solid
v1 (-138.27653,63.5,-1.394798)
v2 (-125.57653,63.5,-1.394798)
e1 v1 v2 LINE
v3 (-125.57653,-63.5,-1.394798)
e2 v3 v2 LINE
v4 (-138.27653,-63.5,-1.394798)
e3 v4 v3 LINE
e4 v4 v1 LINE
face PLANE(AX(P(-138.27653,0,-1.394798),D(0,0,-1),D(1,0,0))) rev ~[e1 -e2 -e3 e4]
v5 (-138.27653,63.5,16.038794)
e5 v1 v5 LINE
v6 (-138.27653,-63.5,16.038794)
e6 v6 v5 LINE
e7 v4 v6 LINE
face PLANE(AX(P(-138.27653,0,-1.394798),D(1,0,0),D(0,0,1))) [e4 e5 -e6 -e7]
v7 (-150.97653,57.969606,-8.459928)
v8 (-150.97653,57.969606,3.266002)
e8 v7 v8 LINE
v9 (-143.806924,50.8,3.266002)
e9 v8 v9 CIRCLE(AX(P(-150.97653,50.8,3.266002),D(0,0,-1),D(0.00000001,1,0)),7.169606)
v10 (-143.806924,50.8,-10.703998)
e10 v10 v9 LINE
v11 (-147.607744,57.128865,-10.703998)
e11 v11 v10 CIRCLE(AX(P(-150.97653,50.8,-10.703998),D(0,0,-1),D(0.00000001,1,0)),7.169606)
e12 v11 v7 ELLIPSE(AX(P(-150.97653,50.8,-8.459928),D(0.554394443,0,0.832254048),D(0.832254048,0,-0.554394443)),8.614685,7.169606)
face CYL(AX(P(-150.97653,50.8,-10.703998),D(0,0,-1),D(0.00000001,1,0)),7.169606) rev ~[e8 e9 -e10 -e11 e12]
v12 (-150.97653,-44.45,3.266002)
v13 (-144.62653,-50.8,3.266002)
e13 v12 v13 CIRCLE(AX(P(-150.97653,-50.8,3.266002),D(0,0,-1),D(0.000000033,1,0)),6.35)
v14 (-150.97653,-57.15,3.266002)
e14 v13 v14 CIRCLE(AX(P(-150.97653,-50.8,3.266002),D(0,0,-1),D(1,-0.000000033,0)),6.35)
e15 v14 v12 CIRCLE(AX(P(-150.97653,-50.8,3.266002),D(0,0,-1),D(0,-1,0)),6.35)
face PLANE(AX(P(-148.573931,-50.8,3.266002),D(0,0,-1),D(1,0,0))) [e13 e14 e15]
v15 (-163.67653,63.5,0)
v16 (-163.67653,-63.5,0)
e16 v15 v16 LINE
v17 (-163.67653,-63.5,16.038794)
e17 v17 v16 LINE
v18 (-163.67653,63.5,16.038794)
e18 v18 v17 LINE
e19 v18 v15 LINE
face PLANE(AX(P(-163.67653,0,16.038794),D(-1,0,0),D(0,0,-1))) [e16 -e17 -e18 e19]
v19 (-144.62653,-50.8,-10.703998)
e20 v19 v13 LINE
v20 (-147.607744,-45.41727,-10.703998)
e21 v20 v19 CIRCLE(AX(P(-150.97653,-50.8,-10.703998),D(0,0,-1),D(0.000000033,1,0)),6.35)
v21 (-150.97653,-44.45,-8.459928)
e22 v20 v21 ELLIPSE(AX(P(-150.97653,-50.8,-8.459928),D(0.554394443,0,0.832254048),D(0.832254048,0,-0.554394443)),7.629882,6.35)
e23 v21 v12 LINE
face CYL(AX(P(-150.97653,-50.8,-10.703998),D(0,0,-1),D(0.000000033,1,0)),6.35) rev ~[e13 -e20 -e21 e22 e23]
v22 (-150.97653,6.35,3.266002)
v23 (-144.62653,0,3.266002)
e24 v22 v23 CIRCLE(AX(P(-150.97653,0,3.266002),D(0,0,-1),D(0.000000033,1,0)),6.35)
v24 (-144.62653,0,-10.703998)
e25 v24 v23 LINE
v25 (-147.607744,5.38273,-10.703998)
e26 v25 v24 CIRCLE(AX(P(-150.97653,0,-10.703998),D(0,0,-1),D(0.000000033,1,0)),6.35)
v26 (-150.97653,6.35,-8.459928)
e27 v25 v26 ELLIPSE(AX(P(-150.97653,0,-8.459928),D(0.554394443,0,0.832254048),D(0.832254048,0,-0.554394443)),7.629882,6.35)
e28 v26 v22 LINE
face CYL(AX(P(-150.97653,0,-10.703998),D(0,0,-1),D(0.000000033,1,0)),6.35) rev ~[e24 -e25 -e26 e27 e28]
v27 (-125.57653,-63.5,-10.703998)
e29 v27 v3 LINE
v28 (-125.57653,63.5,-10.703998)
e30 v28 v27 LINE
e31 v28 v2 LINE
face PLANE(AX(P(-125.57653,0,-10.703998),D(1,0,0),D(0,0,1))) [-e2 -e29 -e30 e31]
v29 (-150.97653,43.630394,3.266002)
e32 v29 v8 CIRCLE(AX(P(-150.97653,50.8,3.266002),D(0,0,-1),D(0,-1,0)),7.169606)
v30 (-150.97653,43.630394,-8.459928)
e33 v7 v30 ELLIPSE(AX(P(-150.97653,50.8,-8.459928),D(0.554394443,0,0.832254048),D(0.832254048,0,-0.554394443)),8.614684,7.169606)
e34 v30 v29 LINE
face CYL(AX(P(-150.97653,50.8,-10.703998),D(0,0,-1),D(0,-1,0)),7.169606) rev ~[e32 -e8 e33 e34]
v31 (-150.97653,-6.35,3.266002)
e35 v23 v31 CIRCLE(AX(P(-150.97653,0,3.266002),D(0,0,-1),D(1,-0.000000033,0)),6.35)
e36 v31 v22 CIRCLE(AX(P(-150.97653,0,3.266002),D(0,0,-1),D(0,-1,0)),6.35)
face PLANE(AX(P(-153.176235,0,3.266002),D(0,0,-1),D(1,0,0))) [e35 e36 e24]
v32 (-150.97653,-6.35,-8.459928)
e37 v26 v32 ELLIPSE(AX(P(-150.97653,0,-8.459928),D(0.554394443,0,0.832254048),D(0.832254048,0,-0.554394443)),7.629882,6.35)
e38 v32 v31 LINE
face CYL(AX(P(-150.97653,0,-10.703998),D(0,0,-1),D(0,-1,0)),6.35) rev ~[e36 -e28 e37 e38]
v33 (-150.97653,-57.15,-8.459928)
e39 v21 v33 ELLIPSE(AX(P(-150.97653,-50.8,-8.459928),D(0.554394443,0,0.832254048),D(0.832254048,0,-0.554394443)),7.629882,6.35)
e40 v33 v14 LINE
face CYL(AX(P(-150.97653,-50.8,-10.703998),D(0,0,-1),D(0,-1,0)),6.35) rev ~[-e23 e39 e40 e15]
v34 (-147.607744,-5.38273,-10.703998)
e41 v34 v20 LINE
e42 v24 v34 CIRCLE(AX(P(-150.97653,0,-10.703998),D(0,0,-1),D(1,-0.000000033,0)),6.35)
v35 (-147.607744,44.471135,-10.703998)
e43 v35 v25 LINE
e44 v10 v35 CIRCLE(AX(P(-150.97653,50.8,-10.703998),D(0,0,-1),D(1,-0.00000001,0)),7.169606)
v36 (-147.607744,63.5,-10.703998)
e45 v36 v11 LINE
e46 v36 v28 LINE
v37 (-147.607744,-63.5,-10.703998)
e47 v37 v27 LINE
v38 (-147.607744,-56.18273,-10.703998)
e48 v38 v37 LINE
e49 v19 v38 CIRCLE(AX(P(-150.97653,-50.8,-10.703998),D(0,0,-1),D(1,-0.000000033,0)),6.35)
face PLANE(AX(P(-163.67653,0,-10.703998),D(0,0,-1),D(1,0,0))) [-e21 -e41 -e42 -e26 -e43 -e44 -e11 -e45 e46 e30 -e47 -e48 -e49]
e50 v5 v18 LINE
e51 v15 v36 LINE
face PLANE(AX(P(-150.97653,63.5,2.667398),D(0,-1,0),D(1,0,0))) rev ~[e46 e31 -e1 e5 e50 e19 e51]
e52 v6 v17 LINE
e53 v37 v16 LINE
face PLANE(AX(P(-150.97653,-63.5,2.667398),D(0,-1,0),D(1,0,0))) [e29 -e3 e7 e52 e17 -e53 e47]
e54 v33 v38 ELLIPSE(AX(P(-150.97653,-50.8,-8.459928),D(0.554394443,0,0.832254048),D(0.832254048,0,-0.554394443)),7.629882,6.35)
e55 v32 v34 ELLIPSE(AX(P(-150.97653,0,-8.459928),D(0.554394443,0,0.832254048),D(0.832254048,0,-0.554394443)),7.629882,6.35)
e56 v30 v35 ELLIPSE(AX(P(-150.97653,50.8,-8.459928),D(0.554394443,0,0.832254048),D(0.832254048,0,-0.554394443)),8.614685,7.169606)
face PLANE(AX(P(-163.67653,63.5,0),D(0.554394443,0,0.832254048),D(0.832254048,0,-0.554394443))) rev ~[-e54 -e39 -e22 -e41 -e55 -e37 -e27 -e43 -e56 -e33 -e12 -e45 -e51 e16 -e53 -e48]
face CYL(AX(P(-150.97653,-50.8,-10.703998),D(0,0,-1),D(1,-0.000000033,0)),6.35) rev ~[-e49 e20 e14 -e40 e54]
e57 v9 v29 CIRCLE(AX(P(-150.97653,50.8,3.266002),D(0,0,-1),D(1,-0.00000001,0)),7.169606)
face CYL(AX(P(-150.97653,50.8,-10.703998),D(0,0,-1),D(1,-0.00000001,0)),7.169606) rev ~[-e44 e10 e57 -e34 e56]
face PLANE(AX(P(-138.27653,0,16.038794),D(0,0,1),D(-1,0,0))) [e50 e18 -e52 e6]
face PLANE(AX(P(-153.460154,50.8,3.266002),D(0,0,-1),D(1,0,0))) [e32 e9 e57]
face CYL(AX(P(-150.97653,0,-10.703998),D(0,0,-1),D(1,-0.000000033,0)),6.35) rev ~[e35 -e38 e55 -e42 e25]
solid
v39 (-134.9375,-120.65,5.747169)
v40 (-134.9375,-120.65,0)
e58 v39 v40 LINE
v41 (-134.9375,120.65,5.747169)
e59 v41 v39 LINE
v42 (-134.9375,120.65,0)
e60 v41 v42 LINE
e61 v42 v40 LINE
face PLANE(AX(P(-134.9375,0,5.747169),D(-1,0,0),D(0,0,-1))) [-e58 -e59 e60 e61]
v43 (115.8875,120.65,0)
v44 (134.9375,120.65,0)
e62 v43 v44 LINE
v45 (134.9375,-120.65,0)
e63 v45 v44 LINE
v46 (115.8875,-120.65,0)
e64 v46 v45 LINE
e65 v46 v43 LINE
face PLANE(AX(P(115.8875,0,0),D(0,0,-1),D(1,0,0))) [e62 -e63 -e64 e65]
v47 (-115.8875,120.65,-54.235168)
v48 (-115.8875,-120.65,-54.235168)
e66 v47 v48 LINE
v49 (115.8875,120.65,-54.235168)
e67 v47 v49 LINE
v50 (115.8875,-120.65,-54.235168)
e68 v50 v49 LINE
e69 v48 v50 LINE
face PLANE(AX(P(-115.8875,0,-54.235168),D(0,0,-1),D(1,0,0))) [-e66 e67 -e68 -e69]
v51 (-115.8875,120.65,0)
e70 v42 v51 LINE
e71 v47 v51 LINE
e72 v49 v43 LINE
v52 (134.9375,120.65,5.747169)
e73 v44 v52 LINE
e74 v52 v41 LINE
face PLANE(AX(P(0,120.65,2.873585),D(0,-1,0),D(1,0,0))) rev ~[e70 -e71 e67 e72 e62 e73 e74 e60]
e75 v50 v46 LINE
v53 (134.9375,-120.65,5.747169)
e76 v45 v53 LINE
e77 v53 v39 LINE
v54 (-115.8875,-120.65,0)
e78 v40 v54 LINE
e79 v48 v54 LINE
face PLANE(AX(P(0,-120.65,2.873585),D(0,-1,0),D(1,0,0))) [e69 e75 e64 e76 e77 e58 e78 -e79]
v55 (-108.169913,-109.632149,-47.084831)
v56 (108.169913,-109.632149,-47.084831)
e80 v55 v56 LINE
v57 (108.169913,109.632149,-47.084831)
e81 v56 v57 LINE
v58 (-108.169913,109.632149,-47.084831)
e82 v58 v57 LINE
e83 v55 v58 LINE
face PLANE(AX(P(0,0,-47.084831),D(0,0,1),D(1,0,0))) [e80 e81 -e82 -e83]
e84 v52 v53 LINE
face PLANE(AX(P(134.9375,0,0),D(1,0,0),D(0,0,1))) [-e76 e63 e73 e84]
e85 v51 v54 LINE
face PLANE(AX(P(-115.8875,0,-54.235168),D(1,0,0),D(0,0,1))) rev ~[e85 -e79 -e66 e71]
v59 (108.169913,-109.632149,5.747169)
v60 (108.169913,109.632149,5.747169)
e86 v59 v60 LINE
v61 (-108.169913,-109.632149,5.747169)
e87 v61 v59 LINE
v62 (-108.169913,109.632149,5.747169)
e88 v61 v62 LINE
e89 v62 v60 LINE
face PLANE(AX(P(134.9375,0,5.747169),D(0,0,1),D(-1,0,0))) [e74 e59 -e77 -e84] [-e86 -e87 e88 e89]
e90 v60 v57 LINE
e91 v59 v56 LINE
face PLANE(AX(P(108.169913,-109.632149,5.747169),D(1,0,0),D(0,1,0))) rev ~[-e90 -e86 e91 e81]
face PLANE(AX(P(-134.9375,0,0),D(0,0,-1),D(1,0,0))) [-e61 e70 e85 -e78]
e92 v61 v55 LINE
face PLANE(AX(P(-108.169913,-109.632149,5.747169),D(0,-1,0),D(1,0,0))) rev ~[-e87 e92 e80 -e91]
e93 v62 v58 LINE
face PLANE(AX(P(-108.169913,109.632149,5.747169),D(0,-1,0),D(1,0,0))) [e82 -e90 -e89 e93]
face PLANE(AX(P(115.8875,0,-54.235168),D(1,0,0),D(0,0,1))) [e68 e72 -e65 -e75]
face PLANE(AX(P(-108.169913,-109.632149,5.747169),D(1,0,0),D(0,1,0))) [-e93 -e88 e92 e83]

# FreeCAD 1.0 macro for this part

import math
import FreeCAD as App
import Part
import Sketcher
from FreeCAD import Vector
Q = App.Units.Quantity

doc = App.newDocument("Part")
params = doc.addObject("Spreadsheet::Sheet", "Params")
for row, (alias, value) in enumerate([
    ("sketch1_width", "1 in"),
    ("sketch1_width2", "1.5 in"),
    ("pad1_length", "5 in"),
    ("sketch3_radius", "0.25 in"),
    ("pocket2_length", "0.55 in"),
    ("sketch4_width", "0.75 in"),
    ("sketch4_width2", "10.625 in"),
    ("pad2_length", "9.5 in"),
    ("pocket3_length", "2.08 in"),
], start=1):
    params.set(f"A{row}", alias)
    params.set(f"B{row}", "=" + value)
    params.setAlias(f"B{row}", alias)

body = doc.addObject("PartDesign::Body", "Body")

sketch1 = body.newObject("Sketcher::SketchObject", "Sketch")
sketch1.AttachmentSupport = (doc.getObject("XZ_Plane"), [""])
sketch1.MapMode = "FlatFace"
sketch1.addGeometry([
    Part.LineSegment(Vector(-138, 16, 0), Vector(-164, 16, 0)),
    Part.LineSegment(Vector(-164, 16, 0), Vector(-164, -11, 0)),
    Part.LineSegment(Vector(-164, -11, 0), Vector(-126, -11, 0)),
    Part.LineSegment(Vector(-126, -11, 0), Vector(-126, -1, 0)),
    Part.LineSegment(Vector(-126, -1, 0), Vector(-138, -1, 0)),
    Part.LineSegment(Vector(-138, -1, 0), Vector(-138, 16, 0)),
], False)
sketch1.addConstraint([
    Sketcher.Constraint("Coincident", 0, 2, 1, 1),
    Sketcher.Constraint("Coincident", 1, 2, 2, 1),
    Sketcher.Constraint("Coincident", 2, 2, 3, 1),
    Sketcher.Constraint("Coincident", 3, 2, 4, 1),
    Sketcher.Constraint("Coincident", 4, 2, 5, 1),
    Sketcher.Constraint("Coincident", 5, 2, 0, 1),
    Sketcher.Constraint("Horizontal", 0),
    Sketcher.Constraint("Vertical", 1),
    Sketcher.Constraint("Horizontal", 2),
    Sketcher.Constraint("Vertical", 3),
    Sketcher.Constraint("Horizontal", 4),
    Sketcher.Constraint("Vertical", 5),
    Sketcher.Constraint("DistanceX", 0, 2, 0, 1, Q("1 in")),
    Sketcher.Constraint("DistanceX", 2, 1, 2, 2, Q("1.5 in")),
    Sketcher.Constraint("DistanceY", 3, 1, 3, 2, 9.3092),
    Sketcher.Constraint("DistanceY", 1, 2, 1, 1, 26.742792),
    Sketcher.Constraint("DistanceX", 0, 2, -1, 1, 163.67653),
    Sketcher.Constraint("DistanceY", -1, 1, 0, 2, 16.038794),
])
sketch1.setExpression("Constraints[12]", "Params.sketch1_width")
sketch1.setExpression("Constraints[13]", "Params.sketch1_width2")
pad1 = body.newObject("PartDesign::Pad", "Pad")
pad1.Profile = sketch1
pad1.setExpression("Length", "Params.pad1_length")
pad1.Midplane = True

sketch2 = body.newObject("Sketcher::SketchObject", "Sketch001")
sketch2.AttachmentSupport = (doc.getObject("XZ_Plane"), [""])
sketch2.MapMode = "FlatFace"
sketch2.AttachmentOffset = App.Placement(Vector(0, 0, -2.5 * 25.4), App.Rotation())
sketch2.addGeometry([
    Part.LineSegment(Vector(-148, -11, 0), Vector(-164, -11, 0)),
    Part.LineSegment(Vector(-164, -11, 0), Vector(-164, 0, 0)),
    Part.LineSegment(Vector(-164, 0, 0), Vector(-148, -11, 0)),
], False)
sketch2.addConstraint([
    Sketcher.Constraint("Coincident", 0, 2, 1, 1),
    Sketcher.Constraint("Coincident", 1, 2, 2, 1),
    Sketcher.Constraint("Coincident", 2, 2, 0, 1),
    Sketcher.Constraint("Horizontal", 0),
    Sketcher.Constraint("Vertical", 1),
    Sketcher.Constraint("PointOnObject", 1, 2, -1),
    Sketcher.Constraint("Distance", 2, 19.307549),
    Sketcher.Constraint("DistanceX", 0, 2, 0, 1, 16.068786),
    Sketcher.Constraint("DistanceX", 0, 2, -1, 1, 163.67653),
])
pocket1 = body.newObject("PartDesign::Pocket", "Pocket")
pocket1.Profile = sketch2
pocket1.Type = "ThroughAll"
pocket1.Reversed = True

sketch3 = body.newObject("Sketcher::SketchObject", "Sketch002")
sketch3.AttachmentSupport = (doc.getObject("XY_Plane"), [""])
sketch3.MapMode = "FlatFace"
sketch3.AttachmentOffset = App.Placement(Vector(0, 0, -10.703998), App.Rotation())
sketch3.addGeometry([
    Part.ArcOfCircle(Part.Circle(Vector(-151, -51, 0), Vector(0, 0, 1), 6), math.radians(0), math.radians(90)),
    Part.ArcOfCircle(Part.Circle(Vector(-151, -51, 0), Vector(0, 0, 1), 6), math.radians(-90), math.radians(0)),
    Part.ArcOfCircle(Part.Circle(Vector(-151, -51, 0), Vector(0, 0, 1), 6), math.radians(90), math.radians(270)),
    Part.ArcOfCircle(Part.Circle(Vector(-151, 0, 0), Vector(0, 0, 1), 6), math.radians(90), math.radians(270)),
    Part.ArcOfCircle(Part.Circle(Vector(-151, 0, 0), Vector(0, 0, 1), 6), math.radians(0), math.radians(90)),
    Part.ArcOfCircle(Part.Circle(Vector(-151, 0, 0), Vector(0, 0, 1), 6), math.radians(-90), math.radians(0)),
    Part.ArcOfCircle(Part.Circle(Vector(-151, 51, 0), Vector(0, 0, 1), 7), math.radians(90), math.radians(270)),
    Part.ArcOfCircle(Part.Circle(Vector(-151, 51, 0), Vector(0, 0, 1), 7), math.radians(0), math.radians(90)),
    Part.ArcOfCircle(Part.Circle(Vector(-151, 51, 0), Vector(0, 0, 1), 7), math.radians(-90), math.radians(0)),
], False)
sketch3.addConstraint([
    Sketcher.Constraint("Tangent", 0, 1, 1, 2),
    Sketcher.Constraint("Tangent", 1, 1, 2, 2),
    Sketcher.Constraint("Tangent", 2, 1, 0, 2),
    Sketcher.Constraint("Tangent", 3, 1, 4, 2),
    Sketcher.Constraint("Tangent", 4, 1, 5, 2),
    Sketcher.Constraint("Tangent", 5, 1, 3, 2),
    Sketcher.Constraint("Tangent", 6, 1, 7, 2),
    Sketcher.Constraint("Tangent", 7, 1, 8, 2),
    Sketcher.Constraint("Tangent", 8, 1, 6, 2),
    Sketcher.Constraint("Equal", 2, 3),
    Sketcher.Constraint("Symmetric", 0, 3, 6, 3, -1),
    Sketcher.Constraint("Symmetric", 3, 1, 5, 1, -1),
    Sketcher.Constraint("PointOnObject", 4, 1, -1),
    Sketcher.Constraint("Horizontal", 2, 3, 0, 1),
    Sketcher.Constraint("Horizontal", 8, 3, 7, 1),
    Sketcher.Constraint("Vertical", 2, 3, 3, 3),
    Sketcher.Constraint("Vertical", 8, 3, 1, 1),
    Sketcher.Constraint("Vertical", 1, 1, 2, 1),
    Sketcher.Constraint("Vertical", 2, 1, 3, 1),
    Sketcher.Constraint("Vertical", 5, 1, 6, 1),
    Sketcher.Constraint("Vertical", 6, 1, 8, 1),
    Sketcher.Constraint("Radius", 0, Q("0.25 in")),
    Sketcher.Constraint("DistanceY", 0, 3, -1, 1, Q("2 in")),
    Sketcher.Constraint("Radius", 6, 7.169606),
    Sketcher.Constraint("DistanceX", 0, 3, -1, 1, 150.97653),
])
sketch3.setExpression("Constraints[21]", "Params.sketch3_radius")
pocket2 = body.newObject("PartDesign::Pocket", "Pocket001")
pocket2.Profile = sketch3
pocket2.setExpression("Length", "Params.pocket2_length")
pocket2.Reversed = True
body2 = doc.addObject("PartDesign::Body", "Body001")

sketch4 = body2.newObject("Sketcher::SketchObject", "Sketch003")
sketch4.AttachmentSupport = (doc.getObject("XZ_Plane001"), [""])
sketch4.MapMode = "FlatFace"
sketch4.addGeometry([
    Part.LineSegment(Vector(135, 0, 0), Vector(135, 6, 0)),
    Part.LineSegment(Vector(135, 6, 0), Vector(-135, 6, 0)),
    Part.LineSegment(Vector(-135, 6, 0), Vector(-135, 0, 0)),
    Part.LineSegment(Vector(-135, 0, 0), Vector(-116, 0, 0)),
    Part.LineSegment(Vector(-116, 0, 0), Vector(-116, -54, 0)),
    Part.LineSegment(Vector(-116, -54, 0), Vector(116, -54, 0)),
    Part.LineSegment(Vector(116, -54, 0), Vector(116, 0, 0)),
    Part.LineSegment(Vector(116, 0, 0), Vector(135, 0, 0)),
], False)
sketch4.addConstraint([
    Sketcher.Constraint("Coincident", 0, 2, 1, 1),
    Sketcher.Constraint("Coincident", 1, 2, 2, 1),
    Sketcher.Constraint("Coincident", 2, 2, 3, 1),
    Sketcher.Constraint("Coincident", 3, 2, 4, 1),
    Sketcher.Constraint("Coincident", 4, 2, 5, 1),
    Sketcher.Constraint("Coincident", 5, 2, 6, 1),
    Sketcher.Constraint("Coincident", 6, 2, 7, 1),
    Sketcher.Constraint("Coincident", 7, 2, 0, 1),
    Sketcher.Constraint("Vertical", 0),
    Sketcher.Constraint("Horizontal", 1),
    Sketcher.Constraint("Vertical", 2),
    Sketcher.Constraint("Horizontal", 3),
    Sketcher.Constraint("Vertical", 4),
    Sketcher.Constraint("Horizontal", 5),
    Sketcher.Constraint("Vertical", 6),
    Sketcher.Constraint("Horizontal", 7),
    Sketcher.Constraint("Symmetric", 3, 2, 6, 2, -1, 1),
    Sketcher.Constraint("Symmetric", 2, 2, 7, 2, -2),
    Sketcher.Constraint("DistanceX", 3, 1, 3, 2, Q("0.75 in")),
    Sketcher.Constraint("DistanceX", 1, 2, 1, 1, Q("10.625 in")),
    Sketcher.Constraint("DistanceY", 0, 1, 0, 2, 5.747169),
    Sketcher.Constraint("DistanceY", 4, 2, 4, 1, 54.235168),
])
sketch4.setExpression("Constraints[18]", "Params.sketch4_width")
sketch4.setExpression("Constraints[19]", "Params.sketch4_width2")
pad2 = body2.newObject("PartDesign::Pad", "Pad001")
pad2.Profile = sketch4
pad2.setExpression("Length", "Params.pad2_length")
pad2.Midplane = True

sketch5 = body2.newObject("Sketcher::SketchObject", "Sketch004")
sketch5.AttachmentSupport = (doc.getObject("XY_Plane001"), [""])
sketch5.MapMode = "FlatFace"
sketch5.AttachmentOffset = App.Placement(Vector(0, 0, 5.747169), App.Rotation())
sketch5.addGeometry([
    Part.LineSegment(Vector(-108, 110, 0), Vector(-108, -110, 0)),
    Part.LineSegment(Vector(-108, -110, 0), Vector(108, -110, 0)),
    Part.LineSegment(Vector(108, -110, 0), Vector(108, 110, 0)),
    Part.LineSegment(Vector(108, 110, 0), Vector(-108, 110, 0)),
], False)
sketch5.addConstraint([
    Sketcher.Constraint("Coincident", 0, 2, 1, 1),
    Sketcher.Constraint("Coincident", 1, 2, 2, 1),
    Sketcher.Constraint("Coincident", 2, 2, 3, 1),
    Sketcher.Constraint("Coincident", 3, 2, 0, 1),
    Sketcher.Constraint("Vertical", 0),
    Sketcher.Constraint("Horizontal", 1),
    Sketcher.Constraint("Vertical", 2),
    Sketcher.Constraint("Horizontal", 3),
    Sketcher.Constraint("Symmetric", 0, 2, 2, 2, -1, 1),
    Sketcher.Constraint("DistanceY", 0, 2, 0, 1, 219.264298),
    Sketcher.Constraint("DistanceX", 1, 1, 1, 2, 216.339826),
])
pocket3 = body2.newObject("PartDesign::Pocket", "Pocket002")
pocket3.Profile = sketch5
pocket3.setExpression("Length", "Params.pocket3_length")

doc.recompute()
